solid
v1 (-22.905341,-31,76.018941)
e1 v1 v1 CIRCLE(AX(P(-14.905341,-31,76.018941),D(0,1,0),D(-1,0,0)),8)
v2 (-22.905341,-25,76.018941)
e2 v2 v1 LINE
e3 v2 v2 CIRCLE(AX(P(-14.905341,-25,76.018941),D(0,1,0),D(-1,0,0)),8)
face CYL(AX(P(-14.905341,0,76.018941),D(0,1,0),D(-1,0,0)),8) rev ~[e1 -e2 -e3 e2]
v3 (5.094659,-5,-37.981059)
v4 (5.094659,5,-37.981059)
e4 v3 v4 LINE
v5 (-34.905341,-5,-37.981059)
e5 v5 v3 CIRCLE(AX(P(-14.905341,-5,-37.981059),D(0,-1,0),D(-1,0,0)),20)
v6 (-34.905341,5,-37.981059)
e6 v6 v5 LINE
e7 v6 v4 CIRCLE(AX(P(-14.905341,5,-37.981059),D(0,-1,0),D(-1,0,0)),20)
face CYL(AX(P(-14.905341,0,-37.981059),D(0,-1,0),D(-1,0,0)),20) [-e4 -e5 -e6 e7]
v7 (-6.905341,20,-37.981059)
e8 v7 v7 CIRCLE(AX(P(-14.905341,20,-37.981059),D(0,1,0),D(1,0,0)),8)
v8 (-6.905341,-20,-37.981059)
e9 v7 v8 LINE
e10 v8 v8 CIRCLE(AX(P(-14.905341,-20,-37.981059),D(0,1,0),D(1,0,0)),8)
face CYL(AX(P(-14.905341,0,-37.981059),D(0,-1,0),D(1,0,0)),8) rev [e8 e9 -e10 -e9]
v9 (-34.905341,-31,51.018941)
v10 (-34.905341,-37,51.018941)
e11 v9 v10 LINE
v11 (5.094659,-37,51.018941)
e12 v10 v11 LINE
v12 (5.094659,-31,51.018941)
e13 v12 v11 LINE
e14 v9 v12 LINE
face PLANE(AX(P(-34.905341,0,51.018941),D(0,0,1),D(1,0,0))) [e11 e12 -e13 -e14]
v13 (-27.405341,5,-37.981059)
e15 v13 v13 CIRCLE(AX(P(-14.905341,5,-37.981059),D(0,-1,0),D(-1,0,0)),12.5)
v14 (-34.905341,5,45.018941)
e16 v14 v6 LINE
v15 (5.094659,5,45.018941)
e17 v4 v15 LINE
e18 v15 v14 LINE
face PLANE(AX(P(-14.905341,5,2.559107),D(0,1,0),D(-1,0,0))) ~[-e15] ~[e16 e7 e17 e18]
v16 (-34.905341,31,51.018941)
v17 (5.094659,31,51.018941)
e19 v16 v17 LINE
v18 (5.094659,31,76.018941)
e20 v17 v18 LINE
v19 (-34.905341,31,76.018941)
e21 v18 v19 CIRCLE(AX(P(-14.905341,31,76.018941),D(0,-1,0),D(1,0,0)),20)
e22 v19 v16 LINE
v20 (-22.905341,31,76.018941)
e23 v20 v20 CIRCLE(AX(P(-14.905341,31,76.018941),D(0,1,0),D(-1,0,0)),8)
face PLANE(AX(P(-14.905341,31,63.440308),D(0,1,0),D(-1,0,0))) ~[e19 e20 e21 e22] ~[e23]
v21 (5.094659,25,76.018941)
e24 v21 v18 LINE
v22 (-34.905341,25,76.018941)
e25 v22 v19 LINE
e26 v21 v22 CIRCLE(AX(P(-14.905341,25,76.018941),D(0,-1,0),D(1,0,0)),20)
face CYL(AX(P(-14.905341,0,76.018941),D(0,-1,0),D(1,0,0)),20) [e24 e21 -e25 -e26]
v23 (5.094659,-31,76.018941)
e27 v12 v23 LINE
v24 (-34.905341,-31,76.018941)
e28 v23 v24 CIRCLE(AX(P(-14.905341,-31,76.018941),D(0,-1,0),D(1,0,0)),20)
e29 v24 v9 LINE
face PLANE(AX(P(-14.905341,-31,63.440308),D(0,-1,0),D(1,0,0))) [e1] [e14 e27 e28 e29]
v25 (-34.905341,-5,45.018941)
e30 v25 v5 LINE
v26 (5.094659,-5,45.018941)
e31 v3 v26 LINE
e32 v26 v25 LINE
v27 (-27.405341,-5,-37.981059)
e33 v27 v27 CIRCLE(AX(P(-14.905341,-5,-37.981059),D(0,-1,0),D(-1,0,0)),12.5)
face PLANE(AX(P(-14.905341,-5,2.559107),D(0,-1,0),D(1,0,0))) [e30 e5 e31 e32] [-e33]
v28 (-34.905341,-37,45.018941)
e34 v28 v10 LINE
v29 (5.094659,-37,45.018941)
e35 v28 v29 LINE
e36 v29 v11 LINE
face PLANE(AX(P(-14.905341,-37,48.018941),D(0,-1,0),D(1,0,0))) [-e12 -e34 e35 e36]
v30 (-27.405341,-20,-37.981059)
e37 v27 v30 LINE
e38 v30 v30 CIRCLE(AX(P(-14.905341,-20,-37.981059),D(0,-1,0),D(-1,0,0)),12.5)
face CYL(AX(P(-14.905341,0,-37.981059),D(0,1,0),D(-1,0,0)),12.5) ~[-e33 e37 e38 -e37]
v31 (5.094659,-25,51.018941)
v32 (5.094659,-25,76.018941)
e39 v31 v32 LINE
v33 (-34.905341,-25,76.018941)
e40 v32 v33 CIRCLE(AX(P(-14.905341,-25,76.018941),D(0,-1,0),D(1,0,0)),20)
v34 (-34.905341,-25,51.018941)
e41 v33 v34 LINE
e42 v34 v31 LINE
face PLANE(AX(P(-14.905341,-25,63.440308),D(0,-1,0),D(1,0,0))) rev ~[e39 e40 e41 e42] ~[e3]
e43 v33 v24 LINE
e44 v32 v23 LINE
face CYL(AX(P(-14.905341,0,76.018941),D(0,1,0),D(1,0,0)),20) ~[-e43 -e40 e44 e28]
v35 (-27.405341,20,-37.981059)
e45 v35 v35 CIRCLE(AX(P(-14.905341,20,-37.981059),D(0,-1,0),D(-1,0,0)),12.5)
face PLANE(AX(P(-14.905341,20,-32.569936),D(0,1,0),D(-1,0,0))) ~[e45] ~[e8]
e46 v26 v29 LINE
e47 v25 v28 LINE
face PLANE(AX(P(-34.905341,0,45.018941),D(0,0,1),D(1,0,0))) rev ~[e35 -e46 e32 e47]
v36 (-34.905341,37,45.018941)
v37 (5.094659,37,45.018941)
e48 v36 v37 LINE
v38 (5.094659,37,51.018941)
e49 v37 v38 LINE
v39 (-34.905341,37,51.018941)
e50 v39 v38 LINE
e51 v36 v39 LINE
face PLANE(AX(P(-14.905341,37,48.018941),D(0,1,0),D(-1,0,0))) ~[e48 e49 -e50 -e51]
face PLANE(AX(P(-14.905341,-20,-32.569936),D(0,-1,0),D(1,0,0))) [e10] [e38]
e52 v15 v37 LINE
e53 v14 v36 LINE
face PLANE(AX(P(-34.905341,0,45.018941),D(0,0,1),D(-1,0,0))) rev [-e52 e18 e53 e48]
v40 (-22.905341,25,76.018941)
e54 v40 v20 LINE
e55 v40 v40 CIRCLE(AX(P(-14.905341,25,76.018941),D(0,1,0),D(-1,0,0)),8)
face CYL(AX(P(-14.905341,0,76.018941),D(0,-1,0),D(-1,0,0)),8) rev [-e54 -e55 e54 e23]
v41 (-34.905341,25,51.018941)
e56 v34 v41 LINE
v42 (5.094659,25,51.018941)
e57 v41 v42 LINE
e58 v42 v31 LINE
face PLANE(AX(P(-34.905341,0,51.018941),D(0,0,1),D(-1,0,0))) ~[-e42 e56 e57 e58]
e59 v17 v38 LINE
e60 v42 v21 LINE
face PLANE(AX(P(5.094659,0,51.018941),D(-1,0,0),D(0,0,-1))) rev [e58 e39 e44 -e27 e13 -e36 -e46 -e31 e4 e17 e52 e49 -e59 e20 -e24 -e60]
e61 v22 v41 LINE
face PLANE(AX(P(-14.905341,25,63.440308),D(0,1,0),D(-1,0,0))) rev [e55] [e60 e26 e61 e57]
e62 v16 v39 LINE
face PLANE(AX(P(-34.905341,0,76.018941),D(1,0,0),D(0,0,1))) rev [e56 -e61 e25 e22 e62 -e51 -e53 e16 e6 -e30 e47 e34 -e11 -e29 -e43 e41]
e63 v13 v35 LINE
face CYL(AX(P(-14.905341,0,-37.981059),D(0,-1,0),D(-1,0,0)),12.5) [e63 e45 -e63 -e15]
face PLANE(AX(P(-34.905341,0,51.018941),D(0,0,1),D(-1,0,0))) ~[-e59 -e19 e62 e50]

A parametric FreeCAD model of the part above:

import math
import FreeCAD as App
import Part
import Sketcher

V = App.Vector
Q = App.Units.Quantity

doc = App.newDocument("Part")
body = doc.addObject("PartDesign::Body", "Body")

# Sketch on XZ plane
sketch1 = body.newObject("Sketcher::SketchObject", "Sketch")
sketch1.AttachmentSupport = (doc.getObject("XZ_Plane"), [""])
sketch1.MapMode = "FlatFace"
sketch1.addGeometry([
    Part.LineSegment(V(-35, 51, 0), V(-35, 45, 0)),
    Part.LineSegment(V(-35, 45, 0), V(5, 45, 0)),
    Part.LineSegment(V(5, 45, 0), V(5, 51, 0)),
    Part.LineSegment(V(5, 51, 0), V(-35, 51, 0)),
], False)
sketch1.addConstraint([
    Sketcher.Constraint("Coincident", 0, 2, 1, 1),
    Sketcher.Constraint("Coincident", 1, 2, 2, 1),
    Sketcher.Constraint("Coincident", 2, 2, 3, 1),
    Sketcher.Constraint("Coincident", 3, 2, 0, 1),
    Sketcher.Constraint("Vertical", 0),
    Sketcher.Constraint("Horizontal", 1),
    Sketcher.Constraint("Vertical", 2),
    Sketcher.Constraint("Horizontal", 3),
    Sketcher.Constraint("DistanceX", 1, 1, 1, 2, Q("40 mm")),
    Sketcher.Constraint("DistanceY", 0, 2, 0, 1, Q("6 mm")),
    Sketcher.Constraint("DistanceX", 0, 2, -1, 1, Q("34.905341 mm")),
    Sketcher.Constraint("DistanceY", -1, 1, 0, 2, Q("45.018941 mm")),
])
pad1 = body.newObject("PartDesign::Pad", "Pad")
pad1.Profile = sketch1
pad1.Length = 37

# Sketch on XZ plane
sketch2 = body.newObject("Sketcher::SketchObject", "Sketch001")
sketch2.AttachmentSupport = (doc.getObject("XZ_Plane"), [""])
sketch2.MapMode = "FlatFace"
sketch2.addGeometry([
    Part.LineSegment(V(5, -38, 0), V(5, 45, 0)),  # 0
    Part.LineSegment(V(5, 45, 0), V(-35, 45, 0)),  # 1
    Part.LineSegment(V(-35, 45, 0), V(-35, -38, 0)),  # 2
    Part.ArcOfCircle(Part.Circle(V(-15, -38, 0), V(0, 0, 1), 20), math.radians(180), math.radians(360)),  # 3
    Part.Circle(V(-15, -38, 0), V(0, 0, 1), 12),  # 4
], False)
sketch2.addConstraint([
    Sketcher.Constraint("Coincident", 0, 2, 1, 1),
    Sketcher.Constraint("Coincident", 1, 2, 2, 1),
    Sketcher.Constraint("Tangent", 2, 2, 3, 1),
    Sketcher.Constraint("Tangent", 3, 2, 0, 1),
    Sketcher.Constraint("Vertical", 0),
    Sketcher.Constraint("Horizontal", 1),
    Sketcher.Constraint("Vertical", 2),
    Sketcher.Constraint("Coincident", 4, 3, 3, 3),
    Sketcher.Constraint("Diameter", 4, Q("25 mm")),
    Sketcher.Constraint("Radius", 3, Q("20 mm")),
    Sketcher.Constraint("DistanceY", 0, 1, 0, 2, Q("83 mm")),
    Sketcher.Constraint("DistanceX", 3, 3, -1, 1, Q("14.905341 mm")),
    Sketcher.Constraint("DistanceY", 3, 3, -1, 1, Q("37.981059 mm")),
])
pad2 = body.newObject("PartDesign::Pad", "Pad001")
pad2.Profile = sketch2
pad2.Length = 5

# Sketch on XZ plane
sketch3 = body.newObject("Sketcher::SketchObject", "Sketch002")
sketch3.AttachmentSupport = (doc.getObject("XZ_Plane"), [""])
sketch3.MapMode = "FlatFace"
sketch3.addGeometry([
    Part.LineSegment(V(-35, 76, 0), V(-35, 51, 0)),  # 0
    Part.LineSegment(V(-35, 51, 0), V(5, 51, 0)),  # 1
    Part.LineSegment(V(5, 51, 0), V(5, 76, 0)),  # 2
    Part.ArcOfCircle(Part.Circle(V(-15, 76, 0), V(0, 0, 1), 20), math.radians(0), math.radians(180)),  # 3
    Part.Circle(V(-15, 76, 0), V(0, 0, 1), 8),  # 4
], False)
sketch3.addConstraint([
    Sketcher.Constraint("Coincident", 0, 2, 1, 1),
    Sketcher.Constraint("Coincident", 1, 2, 2, 1),
    Sketcher.Constraint("Tangent", 2, 2, 3, 1),
    Sketcher.Constraint("Tangent", 3, 2, 0, 1),
    Sketcher.Constraint("Vertical", 0),
    Sketcher.Constraint("Horizontal", 1),
    Sketcher.Constraint("Vertical", 2),
    Sketcher.Constraint("Coincident", 4, 3, 3, 3),
    Sketcher.Constraint("Diameter", 4, Q("16 mm")),
    Sketcher.Constraint("Radius", 3, Q("20 mm")),
    Sketcher.Constraint("DistanceY", 0, 2, 0, 1, Q("25 mm")),
    Sketcher.Constraint("DistanceX", 3, 3, -1, 1, Q("14.905341 mm")),
    Sketcher.Constraint("DistanceY", -1, 1, 3, 3, Q("76.018941 mm")),
])
pad3 = body.newObject("PartDesign::Pad", "Pad002")
pad3.Profile = sketch3
pad3.Length = 31

# Sketch on XZ plane
sketch4 = body.newObject("Sketcher::SketchObject", "Sketch003")
sketch4.AttachmentSupport = (doc.getObject("XZ_Plane"), [""])
sketch4.MapMode = "FlatFace"
sketch4.addGeometry([
    Part.LineSegment(V(-35, 76, 0), V(-35, 51, 0)),  # 0
    Part.LineSegment(V(-35, 51, 0), V(5, 51, 0)),  # 1
    Part.LineSegment(V(5, 51, 0), V(5, 76, 0)),  # 2
    Part.ArcOfCircle(Part.Circle(V(-15, 76, 0), V(0, 0, 1), 20), math.radians(0), math.radians(180)),  # 3
    Part.Circle(V(-15, 76, 0), V(0, 0, 1), 8),  # 4
], False)
sketch4.addConstraint([
    Sketcher.Constraint("Coincident", 0, 2, 1, 1),
    Sketcher.Constraint("Coincident", 1, 2, 2, 1),
    Sketcher.Constraint("Tangent", 2, 2, 3, 1),
    Sketcher.Constraint("Tangent", 3, 2, 0, 1),
    Sketcher.Constraint("Vertical", 0),
    Sketcher.Constraint("Horizontal", 1),
    Sketcher.Constraint("Vertical", 2),
    Sketcher.Constraint("Coincident", 4, 3, 3, 3),
    Sketcher.Constraint("Diameter", 4, Q("16 mm")),
    Sketcher.Constraint("Radius", 3, Q("20 mm")),
    Sketcher.Constraint("DistanceY", 0, 2, 0, 1, Q("25 mm")),
    Sketcher.Constraint("DistanceX", 3, 3, -1, 1, Q("14.905341 mm")),
    Sketcher.Constraint("DistanceY", -1, 1, 3, 3, Q("76.018941 mm")),
])
pocket1 = body.newObject("PartDesign::Pocket", "Pocket")
pocket1.Profile = sketch4
pocket1.Length = 25
pocket1.Reversed = True

# Sketch on XZ plane
sketch5 = body.newObject("Sketcher::SketchObject", "Sketch004")
sketch5.AttachmentSupport = (doc.getObject("XZ_Plane"), [""])
sketch5.MapMode = "FlatFace"
sketch5.addGeometry([
    Part.Circle(V(-15, -38, 0), V(0, 0, 1), 12),
    Part.Circle(V(-15, -38, 0), V(0, 0, 1), 8),
], False)
sketch5.addConstraint([
    Sketcher.Constraint("Coincident", 1, 3, 0, 3),
    Sketcher.Constraint("Diameter", 0, Q("25 mm")),
    Sketcher.Constraint("Diameter", 1, Q("16 mm")),
    Sketcher.Constraint("DistanceX", 0, 3, -1, 1, Q("14.905341 mm")),
    Sketcher.Constraint("DistanceY", 0, 3, -1, 1, Q("37.981059 mm")),
])
pad4 = body.newObject("PartDesign::Pad", "Pad003")
pad4.Profile = sketch5
pad4.Length = 20
body2 = doc.addObject("PartDesign::Body", "Body001")
doc.recompute()

body2.BaseFeature = body
doc.recompute()

mirroring = doc.addObject("Part::Mirroring", "Mirroring")
mirroring.Source = body
mirroring.Base = V(0, 0, 0)
mirroring.Normal = V(0, -1, 0)
body3 = doc.addObject("PartDesign::Body", "Body002")
body3.BaseFeature = mirroring
boolean = body2.newObject("PartDesign::Boolean", "Boolean")
boolean.Type = "Fuse"
boolean.addObjects([body3])
doc.recompute()
mirroring.Visibility = False

doc.recompute()
